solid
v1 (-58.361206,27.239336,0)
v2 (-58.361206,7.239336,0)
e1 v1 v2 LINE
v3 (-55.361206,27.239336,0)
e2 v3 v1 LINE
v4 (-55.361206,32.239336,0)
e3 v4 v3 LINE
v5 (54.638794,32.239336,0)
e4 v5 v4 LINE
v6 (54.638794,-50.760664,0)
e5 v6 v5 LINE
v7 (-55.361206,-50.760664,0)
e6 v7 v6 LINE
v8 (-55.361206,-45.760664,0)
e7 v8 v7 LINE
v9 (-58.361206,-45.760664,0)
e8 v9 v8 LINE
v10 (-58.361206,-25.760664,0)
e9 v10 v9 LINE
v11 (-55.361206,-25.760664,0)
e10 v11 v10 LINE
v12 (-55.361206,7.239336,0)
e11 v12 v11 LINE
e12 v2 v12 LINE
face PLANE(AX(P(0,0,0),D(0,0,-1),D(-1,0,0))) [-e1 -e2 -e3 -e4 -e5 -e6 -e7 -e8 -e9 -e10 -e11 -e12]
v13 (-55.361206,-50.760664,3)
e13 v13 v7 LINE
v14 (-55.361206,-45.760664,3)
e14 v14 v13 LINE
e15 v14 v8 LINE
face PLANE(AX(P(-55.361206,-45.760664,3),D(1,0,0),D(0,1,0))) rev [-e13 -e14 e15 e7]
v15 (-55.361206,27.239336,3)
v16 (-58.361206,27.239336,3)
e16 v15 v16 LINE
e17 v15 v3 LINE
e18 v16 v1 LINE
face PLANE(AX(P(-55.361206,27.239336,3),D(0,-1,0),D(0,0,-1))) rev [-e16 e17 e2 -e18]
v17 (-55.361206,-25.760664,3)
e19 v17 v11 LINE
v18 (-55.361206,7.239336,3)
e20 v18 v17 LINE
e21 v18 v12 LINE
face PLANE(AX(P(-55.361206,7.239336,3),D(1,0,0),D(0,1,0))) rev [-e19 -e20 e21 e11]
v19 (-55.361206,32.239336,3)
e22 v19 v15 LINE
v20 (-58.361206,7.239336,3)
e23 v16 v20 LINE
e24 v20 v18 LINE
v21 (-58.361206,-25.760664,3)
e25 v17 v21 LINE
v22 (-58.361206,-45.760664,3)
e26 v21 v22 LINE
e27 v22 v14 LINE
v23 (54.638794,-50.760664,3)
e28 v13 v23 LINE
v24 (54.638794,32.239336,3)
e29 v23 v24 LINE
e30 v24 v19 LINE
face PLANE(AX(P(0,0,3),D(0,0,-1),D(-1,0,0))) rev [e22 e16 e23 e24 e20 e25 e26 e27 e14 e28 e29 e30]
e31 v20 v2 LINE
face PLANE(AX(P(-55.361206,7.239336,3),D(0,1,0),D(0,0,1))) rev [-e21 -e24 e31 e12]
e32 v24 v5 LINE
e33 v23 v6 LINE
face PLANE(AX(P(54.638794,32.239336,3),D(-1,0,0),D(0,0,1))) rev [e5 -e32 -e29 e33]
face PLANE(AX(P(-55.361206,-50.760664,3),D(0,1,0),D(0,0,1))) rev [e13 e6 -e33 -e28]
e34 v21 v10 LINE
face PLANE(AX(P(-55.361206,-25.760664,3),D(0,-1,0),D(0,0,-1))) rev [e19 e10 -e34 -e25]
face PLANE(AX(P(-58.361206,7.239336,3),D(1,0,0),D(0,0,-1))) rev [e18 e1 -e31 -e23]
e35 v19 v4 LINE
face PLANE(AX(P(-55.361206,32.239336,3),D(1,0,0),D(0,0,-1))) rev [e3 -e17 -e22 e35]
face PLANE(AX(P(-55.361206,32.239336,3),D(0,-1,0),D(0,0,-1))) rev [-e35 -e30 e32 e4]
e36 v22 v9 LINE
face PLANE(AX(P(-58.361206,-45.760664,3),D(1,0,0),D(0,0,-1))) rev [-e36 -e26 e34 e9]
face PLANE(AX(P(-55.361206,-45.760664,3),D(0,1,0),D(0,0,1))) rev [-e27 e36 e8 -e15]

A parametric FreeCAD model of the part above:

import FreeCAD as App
import Part
import Sketcher

V = App.Vector
Q = App.Units.Quantity


def add_polygon(sketch, points):
    """Adds a closed chain of lines whose ends are joined by coincident constraints."""
    first, n = sketch.GeometryCount, len(points)
    for a, b in zip(points, points[1:] + points[:1]):
        sketch.addGeometry(Part.LineSegment(App.Vector(*a, 0), App.Vector(*b, 0)), False)
    for i in range(n):
        sketch.addConstraint(Sketcher.Constraint("Coincident", first + i, 2, first + (i + 1) % n, 1))

doc = App.newDocument("Part")
body = doc.addObject("PartDesign::Body", "Body")

# Sketch on XY plane
sketch1 = body.newObject("Sketcher::SketchObject", "Sketch")
sketch1.AttachmentSupport = (doc.getObject("XY_Plane"), [""])
sketch1.MapMode = "FlatFace"
add_polygon(sketch1, [(-55.4, 7.2), (-55.4, -25.8), (-58.4, -25.8), (-58.4, -45.8), (-55.4, -45.8), (-55.4, -50.8), (54.6, -50.8), (54.6, 32.2), (-55.4, 32.2), (-55.4, 27.2), (-58.4, 27.2), (-58.4, 7.2)])  # lines 0-11
sketch1.addConstraint([
    Sketcher.Constraint("Vertical", 0),
    Sketcher.Constraint("Horizontal", 1),
    Sketcher.Constraint("Vertical", 2),
    Sketcher.Constraint("Horizontal", 3),
    Sketcher.Constraint("Vertical", 4),
    Sketcher.Constraint("Horizontal", 5),
    Sketcher.Constraint("Vertical", 6),
    Sketcher.Constraint("Horizontal", 7),
    Sketcher.Constraint("Vertical", 8),
    Sketcher.Constraint("Horizontal", 9),
    Sketcher.Constraint("Vertical", 10),
    Sketcher.Constraint("Horizontal", 11),
    Sketcher.Constraint("Vertical", 0, 2, 3, 2),
    Sketcher.Constraint("Vertical", 4, 2, 7, 2),
    Sketcher.Constraint("Vertical", 2, 2, 9, 2),
    Sketcher.Constraint("Equal", 4, 8),
    Sketcher.Constraint("Equal", 2, 10),
    Sketcher.Constraint("DistanceX", 1, 2, 1, 1, Q("3 mm")),
    Sketcher.Constraint("DistanceX", 5, 1, 5, 2, Q("110 mm")),
    Sketcher.Constraint("DistanceY", 0, 2, 0, 1, Q("33 mm")),
    Sketcher.Constraint("DistanceY", 2, 2, 2, 1, Q("20 mm")),
    Sketcher.Constraint("DistanceY", 4, 2, 4, 1, Q("5 mm")),
    Sketcher.Constraint("DistanceX", 0, 2, -1, 1, Q("55.361206 mm")),
    Sketcher.Constraint("DistanceY", 0, 2, -1, 1, Q("25.760664 mm")),
])
pad1 = body.newObject("PartDesign::Pad", "Pad")
pad1.Profile = sketch1
pad1.Length = 3

doc.recompute()
